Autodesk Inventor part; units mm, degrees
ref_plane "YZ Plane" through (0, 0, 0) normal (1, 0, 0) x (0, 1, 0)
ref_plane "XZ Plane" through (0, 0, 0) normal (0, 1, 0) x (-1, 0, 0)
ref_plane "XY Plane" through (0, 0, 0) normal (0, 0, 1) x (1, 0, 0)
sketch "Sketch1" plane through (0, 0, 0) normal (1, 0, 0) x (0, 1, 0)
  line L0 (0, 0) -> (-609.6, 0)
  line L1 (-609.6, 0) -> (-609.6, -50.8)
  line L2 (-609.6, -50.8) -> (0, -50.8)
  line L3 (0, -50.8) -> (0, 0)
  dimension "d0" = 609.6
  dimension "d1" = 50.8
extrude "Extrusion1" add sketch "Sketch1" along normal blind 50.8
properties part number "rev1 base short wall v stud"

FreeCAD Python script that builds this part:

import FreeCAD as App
import Part
import Sketcher

V = App.Vector
Q = App.Units.Quantity


def add_polygon(sketch, points):
    """Adds a closed chain of lines whose ends are joined by coincident constraints."""
    first, n = sketch.GeometryCount, len(points)
    for a, b in zip(points, points[1:] + points[:1]):
        sketch.addGeometry(Part.LineSegment(App.Vector(*a, 0), App.Vector(*b, 0)), False)
    for i in range(n):
        sketch.addConstraint(Sketcher.Constraint("Coincident", first + i, 2, first + (i + 1) % n, 1))

doc = App.newDocument("Part")
body = doc.addObject("PartDesign::Body", "Body")

# Sketch on YZ plane
sketch1 = doc.addObject("Sketcher::SketchObject", "Sketch")
body.addObject(sketch1)
sketch1.AttachmentSupport = (doc.YZ_Plane, [""])
sketch1.MapMode = "FlatFace"
add_polygon(sketch1, [(0, -50.8), (0, 0), (-609.6, 0), (-609.6, -50.8)])  # lines 0-3
sketch1.addConstraint(Sketcher.Constraint("Vertical", 0))
sketch1.addConstraint(Sketcher.Constraint("Horizontal", 1))
sketch1.addConstraint(Sketcher.Constraint("Vertical", 2))
sketch1.addConstraint(Sketcher.Constraint("Horizontal", 3))
sketch1.addConstraint(Sketcher.Constraint("Coincident", 0, 2, -1, 1))
sketch1.addConstraint(Sketcher.Constraint("DistanceX", 1, 2, 1, 1, Q("24 in")))
sketch1.addConstraint(Sketcher.Constraint("DistanceY", 0, 1, 0, 2, Q("2 in")))
pad1 = doc.addObject("PartDesign::Pad", "Pad")
body.addObject(pad1)
pad1.Profile = sketch1
pad1.Length = Q("2 in")

doc.recompute()
